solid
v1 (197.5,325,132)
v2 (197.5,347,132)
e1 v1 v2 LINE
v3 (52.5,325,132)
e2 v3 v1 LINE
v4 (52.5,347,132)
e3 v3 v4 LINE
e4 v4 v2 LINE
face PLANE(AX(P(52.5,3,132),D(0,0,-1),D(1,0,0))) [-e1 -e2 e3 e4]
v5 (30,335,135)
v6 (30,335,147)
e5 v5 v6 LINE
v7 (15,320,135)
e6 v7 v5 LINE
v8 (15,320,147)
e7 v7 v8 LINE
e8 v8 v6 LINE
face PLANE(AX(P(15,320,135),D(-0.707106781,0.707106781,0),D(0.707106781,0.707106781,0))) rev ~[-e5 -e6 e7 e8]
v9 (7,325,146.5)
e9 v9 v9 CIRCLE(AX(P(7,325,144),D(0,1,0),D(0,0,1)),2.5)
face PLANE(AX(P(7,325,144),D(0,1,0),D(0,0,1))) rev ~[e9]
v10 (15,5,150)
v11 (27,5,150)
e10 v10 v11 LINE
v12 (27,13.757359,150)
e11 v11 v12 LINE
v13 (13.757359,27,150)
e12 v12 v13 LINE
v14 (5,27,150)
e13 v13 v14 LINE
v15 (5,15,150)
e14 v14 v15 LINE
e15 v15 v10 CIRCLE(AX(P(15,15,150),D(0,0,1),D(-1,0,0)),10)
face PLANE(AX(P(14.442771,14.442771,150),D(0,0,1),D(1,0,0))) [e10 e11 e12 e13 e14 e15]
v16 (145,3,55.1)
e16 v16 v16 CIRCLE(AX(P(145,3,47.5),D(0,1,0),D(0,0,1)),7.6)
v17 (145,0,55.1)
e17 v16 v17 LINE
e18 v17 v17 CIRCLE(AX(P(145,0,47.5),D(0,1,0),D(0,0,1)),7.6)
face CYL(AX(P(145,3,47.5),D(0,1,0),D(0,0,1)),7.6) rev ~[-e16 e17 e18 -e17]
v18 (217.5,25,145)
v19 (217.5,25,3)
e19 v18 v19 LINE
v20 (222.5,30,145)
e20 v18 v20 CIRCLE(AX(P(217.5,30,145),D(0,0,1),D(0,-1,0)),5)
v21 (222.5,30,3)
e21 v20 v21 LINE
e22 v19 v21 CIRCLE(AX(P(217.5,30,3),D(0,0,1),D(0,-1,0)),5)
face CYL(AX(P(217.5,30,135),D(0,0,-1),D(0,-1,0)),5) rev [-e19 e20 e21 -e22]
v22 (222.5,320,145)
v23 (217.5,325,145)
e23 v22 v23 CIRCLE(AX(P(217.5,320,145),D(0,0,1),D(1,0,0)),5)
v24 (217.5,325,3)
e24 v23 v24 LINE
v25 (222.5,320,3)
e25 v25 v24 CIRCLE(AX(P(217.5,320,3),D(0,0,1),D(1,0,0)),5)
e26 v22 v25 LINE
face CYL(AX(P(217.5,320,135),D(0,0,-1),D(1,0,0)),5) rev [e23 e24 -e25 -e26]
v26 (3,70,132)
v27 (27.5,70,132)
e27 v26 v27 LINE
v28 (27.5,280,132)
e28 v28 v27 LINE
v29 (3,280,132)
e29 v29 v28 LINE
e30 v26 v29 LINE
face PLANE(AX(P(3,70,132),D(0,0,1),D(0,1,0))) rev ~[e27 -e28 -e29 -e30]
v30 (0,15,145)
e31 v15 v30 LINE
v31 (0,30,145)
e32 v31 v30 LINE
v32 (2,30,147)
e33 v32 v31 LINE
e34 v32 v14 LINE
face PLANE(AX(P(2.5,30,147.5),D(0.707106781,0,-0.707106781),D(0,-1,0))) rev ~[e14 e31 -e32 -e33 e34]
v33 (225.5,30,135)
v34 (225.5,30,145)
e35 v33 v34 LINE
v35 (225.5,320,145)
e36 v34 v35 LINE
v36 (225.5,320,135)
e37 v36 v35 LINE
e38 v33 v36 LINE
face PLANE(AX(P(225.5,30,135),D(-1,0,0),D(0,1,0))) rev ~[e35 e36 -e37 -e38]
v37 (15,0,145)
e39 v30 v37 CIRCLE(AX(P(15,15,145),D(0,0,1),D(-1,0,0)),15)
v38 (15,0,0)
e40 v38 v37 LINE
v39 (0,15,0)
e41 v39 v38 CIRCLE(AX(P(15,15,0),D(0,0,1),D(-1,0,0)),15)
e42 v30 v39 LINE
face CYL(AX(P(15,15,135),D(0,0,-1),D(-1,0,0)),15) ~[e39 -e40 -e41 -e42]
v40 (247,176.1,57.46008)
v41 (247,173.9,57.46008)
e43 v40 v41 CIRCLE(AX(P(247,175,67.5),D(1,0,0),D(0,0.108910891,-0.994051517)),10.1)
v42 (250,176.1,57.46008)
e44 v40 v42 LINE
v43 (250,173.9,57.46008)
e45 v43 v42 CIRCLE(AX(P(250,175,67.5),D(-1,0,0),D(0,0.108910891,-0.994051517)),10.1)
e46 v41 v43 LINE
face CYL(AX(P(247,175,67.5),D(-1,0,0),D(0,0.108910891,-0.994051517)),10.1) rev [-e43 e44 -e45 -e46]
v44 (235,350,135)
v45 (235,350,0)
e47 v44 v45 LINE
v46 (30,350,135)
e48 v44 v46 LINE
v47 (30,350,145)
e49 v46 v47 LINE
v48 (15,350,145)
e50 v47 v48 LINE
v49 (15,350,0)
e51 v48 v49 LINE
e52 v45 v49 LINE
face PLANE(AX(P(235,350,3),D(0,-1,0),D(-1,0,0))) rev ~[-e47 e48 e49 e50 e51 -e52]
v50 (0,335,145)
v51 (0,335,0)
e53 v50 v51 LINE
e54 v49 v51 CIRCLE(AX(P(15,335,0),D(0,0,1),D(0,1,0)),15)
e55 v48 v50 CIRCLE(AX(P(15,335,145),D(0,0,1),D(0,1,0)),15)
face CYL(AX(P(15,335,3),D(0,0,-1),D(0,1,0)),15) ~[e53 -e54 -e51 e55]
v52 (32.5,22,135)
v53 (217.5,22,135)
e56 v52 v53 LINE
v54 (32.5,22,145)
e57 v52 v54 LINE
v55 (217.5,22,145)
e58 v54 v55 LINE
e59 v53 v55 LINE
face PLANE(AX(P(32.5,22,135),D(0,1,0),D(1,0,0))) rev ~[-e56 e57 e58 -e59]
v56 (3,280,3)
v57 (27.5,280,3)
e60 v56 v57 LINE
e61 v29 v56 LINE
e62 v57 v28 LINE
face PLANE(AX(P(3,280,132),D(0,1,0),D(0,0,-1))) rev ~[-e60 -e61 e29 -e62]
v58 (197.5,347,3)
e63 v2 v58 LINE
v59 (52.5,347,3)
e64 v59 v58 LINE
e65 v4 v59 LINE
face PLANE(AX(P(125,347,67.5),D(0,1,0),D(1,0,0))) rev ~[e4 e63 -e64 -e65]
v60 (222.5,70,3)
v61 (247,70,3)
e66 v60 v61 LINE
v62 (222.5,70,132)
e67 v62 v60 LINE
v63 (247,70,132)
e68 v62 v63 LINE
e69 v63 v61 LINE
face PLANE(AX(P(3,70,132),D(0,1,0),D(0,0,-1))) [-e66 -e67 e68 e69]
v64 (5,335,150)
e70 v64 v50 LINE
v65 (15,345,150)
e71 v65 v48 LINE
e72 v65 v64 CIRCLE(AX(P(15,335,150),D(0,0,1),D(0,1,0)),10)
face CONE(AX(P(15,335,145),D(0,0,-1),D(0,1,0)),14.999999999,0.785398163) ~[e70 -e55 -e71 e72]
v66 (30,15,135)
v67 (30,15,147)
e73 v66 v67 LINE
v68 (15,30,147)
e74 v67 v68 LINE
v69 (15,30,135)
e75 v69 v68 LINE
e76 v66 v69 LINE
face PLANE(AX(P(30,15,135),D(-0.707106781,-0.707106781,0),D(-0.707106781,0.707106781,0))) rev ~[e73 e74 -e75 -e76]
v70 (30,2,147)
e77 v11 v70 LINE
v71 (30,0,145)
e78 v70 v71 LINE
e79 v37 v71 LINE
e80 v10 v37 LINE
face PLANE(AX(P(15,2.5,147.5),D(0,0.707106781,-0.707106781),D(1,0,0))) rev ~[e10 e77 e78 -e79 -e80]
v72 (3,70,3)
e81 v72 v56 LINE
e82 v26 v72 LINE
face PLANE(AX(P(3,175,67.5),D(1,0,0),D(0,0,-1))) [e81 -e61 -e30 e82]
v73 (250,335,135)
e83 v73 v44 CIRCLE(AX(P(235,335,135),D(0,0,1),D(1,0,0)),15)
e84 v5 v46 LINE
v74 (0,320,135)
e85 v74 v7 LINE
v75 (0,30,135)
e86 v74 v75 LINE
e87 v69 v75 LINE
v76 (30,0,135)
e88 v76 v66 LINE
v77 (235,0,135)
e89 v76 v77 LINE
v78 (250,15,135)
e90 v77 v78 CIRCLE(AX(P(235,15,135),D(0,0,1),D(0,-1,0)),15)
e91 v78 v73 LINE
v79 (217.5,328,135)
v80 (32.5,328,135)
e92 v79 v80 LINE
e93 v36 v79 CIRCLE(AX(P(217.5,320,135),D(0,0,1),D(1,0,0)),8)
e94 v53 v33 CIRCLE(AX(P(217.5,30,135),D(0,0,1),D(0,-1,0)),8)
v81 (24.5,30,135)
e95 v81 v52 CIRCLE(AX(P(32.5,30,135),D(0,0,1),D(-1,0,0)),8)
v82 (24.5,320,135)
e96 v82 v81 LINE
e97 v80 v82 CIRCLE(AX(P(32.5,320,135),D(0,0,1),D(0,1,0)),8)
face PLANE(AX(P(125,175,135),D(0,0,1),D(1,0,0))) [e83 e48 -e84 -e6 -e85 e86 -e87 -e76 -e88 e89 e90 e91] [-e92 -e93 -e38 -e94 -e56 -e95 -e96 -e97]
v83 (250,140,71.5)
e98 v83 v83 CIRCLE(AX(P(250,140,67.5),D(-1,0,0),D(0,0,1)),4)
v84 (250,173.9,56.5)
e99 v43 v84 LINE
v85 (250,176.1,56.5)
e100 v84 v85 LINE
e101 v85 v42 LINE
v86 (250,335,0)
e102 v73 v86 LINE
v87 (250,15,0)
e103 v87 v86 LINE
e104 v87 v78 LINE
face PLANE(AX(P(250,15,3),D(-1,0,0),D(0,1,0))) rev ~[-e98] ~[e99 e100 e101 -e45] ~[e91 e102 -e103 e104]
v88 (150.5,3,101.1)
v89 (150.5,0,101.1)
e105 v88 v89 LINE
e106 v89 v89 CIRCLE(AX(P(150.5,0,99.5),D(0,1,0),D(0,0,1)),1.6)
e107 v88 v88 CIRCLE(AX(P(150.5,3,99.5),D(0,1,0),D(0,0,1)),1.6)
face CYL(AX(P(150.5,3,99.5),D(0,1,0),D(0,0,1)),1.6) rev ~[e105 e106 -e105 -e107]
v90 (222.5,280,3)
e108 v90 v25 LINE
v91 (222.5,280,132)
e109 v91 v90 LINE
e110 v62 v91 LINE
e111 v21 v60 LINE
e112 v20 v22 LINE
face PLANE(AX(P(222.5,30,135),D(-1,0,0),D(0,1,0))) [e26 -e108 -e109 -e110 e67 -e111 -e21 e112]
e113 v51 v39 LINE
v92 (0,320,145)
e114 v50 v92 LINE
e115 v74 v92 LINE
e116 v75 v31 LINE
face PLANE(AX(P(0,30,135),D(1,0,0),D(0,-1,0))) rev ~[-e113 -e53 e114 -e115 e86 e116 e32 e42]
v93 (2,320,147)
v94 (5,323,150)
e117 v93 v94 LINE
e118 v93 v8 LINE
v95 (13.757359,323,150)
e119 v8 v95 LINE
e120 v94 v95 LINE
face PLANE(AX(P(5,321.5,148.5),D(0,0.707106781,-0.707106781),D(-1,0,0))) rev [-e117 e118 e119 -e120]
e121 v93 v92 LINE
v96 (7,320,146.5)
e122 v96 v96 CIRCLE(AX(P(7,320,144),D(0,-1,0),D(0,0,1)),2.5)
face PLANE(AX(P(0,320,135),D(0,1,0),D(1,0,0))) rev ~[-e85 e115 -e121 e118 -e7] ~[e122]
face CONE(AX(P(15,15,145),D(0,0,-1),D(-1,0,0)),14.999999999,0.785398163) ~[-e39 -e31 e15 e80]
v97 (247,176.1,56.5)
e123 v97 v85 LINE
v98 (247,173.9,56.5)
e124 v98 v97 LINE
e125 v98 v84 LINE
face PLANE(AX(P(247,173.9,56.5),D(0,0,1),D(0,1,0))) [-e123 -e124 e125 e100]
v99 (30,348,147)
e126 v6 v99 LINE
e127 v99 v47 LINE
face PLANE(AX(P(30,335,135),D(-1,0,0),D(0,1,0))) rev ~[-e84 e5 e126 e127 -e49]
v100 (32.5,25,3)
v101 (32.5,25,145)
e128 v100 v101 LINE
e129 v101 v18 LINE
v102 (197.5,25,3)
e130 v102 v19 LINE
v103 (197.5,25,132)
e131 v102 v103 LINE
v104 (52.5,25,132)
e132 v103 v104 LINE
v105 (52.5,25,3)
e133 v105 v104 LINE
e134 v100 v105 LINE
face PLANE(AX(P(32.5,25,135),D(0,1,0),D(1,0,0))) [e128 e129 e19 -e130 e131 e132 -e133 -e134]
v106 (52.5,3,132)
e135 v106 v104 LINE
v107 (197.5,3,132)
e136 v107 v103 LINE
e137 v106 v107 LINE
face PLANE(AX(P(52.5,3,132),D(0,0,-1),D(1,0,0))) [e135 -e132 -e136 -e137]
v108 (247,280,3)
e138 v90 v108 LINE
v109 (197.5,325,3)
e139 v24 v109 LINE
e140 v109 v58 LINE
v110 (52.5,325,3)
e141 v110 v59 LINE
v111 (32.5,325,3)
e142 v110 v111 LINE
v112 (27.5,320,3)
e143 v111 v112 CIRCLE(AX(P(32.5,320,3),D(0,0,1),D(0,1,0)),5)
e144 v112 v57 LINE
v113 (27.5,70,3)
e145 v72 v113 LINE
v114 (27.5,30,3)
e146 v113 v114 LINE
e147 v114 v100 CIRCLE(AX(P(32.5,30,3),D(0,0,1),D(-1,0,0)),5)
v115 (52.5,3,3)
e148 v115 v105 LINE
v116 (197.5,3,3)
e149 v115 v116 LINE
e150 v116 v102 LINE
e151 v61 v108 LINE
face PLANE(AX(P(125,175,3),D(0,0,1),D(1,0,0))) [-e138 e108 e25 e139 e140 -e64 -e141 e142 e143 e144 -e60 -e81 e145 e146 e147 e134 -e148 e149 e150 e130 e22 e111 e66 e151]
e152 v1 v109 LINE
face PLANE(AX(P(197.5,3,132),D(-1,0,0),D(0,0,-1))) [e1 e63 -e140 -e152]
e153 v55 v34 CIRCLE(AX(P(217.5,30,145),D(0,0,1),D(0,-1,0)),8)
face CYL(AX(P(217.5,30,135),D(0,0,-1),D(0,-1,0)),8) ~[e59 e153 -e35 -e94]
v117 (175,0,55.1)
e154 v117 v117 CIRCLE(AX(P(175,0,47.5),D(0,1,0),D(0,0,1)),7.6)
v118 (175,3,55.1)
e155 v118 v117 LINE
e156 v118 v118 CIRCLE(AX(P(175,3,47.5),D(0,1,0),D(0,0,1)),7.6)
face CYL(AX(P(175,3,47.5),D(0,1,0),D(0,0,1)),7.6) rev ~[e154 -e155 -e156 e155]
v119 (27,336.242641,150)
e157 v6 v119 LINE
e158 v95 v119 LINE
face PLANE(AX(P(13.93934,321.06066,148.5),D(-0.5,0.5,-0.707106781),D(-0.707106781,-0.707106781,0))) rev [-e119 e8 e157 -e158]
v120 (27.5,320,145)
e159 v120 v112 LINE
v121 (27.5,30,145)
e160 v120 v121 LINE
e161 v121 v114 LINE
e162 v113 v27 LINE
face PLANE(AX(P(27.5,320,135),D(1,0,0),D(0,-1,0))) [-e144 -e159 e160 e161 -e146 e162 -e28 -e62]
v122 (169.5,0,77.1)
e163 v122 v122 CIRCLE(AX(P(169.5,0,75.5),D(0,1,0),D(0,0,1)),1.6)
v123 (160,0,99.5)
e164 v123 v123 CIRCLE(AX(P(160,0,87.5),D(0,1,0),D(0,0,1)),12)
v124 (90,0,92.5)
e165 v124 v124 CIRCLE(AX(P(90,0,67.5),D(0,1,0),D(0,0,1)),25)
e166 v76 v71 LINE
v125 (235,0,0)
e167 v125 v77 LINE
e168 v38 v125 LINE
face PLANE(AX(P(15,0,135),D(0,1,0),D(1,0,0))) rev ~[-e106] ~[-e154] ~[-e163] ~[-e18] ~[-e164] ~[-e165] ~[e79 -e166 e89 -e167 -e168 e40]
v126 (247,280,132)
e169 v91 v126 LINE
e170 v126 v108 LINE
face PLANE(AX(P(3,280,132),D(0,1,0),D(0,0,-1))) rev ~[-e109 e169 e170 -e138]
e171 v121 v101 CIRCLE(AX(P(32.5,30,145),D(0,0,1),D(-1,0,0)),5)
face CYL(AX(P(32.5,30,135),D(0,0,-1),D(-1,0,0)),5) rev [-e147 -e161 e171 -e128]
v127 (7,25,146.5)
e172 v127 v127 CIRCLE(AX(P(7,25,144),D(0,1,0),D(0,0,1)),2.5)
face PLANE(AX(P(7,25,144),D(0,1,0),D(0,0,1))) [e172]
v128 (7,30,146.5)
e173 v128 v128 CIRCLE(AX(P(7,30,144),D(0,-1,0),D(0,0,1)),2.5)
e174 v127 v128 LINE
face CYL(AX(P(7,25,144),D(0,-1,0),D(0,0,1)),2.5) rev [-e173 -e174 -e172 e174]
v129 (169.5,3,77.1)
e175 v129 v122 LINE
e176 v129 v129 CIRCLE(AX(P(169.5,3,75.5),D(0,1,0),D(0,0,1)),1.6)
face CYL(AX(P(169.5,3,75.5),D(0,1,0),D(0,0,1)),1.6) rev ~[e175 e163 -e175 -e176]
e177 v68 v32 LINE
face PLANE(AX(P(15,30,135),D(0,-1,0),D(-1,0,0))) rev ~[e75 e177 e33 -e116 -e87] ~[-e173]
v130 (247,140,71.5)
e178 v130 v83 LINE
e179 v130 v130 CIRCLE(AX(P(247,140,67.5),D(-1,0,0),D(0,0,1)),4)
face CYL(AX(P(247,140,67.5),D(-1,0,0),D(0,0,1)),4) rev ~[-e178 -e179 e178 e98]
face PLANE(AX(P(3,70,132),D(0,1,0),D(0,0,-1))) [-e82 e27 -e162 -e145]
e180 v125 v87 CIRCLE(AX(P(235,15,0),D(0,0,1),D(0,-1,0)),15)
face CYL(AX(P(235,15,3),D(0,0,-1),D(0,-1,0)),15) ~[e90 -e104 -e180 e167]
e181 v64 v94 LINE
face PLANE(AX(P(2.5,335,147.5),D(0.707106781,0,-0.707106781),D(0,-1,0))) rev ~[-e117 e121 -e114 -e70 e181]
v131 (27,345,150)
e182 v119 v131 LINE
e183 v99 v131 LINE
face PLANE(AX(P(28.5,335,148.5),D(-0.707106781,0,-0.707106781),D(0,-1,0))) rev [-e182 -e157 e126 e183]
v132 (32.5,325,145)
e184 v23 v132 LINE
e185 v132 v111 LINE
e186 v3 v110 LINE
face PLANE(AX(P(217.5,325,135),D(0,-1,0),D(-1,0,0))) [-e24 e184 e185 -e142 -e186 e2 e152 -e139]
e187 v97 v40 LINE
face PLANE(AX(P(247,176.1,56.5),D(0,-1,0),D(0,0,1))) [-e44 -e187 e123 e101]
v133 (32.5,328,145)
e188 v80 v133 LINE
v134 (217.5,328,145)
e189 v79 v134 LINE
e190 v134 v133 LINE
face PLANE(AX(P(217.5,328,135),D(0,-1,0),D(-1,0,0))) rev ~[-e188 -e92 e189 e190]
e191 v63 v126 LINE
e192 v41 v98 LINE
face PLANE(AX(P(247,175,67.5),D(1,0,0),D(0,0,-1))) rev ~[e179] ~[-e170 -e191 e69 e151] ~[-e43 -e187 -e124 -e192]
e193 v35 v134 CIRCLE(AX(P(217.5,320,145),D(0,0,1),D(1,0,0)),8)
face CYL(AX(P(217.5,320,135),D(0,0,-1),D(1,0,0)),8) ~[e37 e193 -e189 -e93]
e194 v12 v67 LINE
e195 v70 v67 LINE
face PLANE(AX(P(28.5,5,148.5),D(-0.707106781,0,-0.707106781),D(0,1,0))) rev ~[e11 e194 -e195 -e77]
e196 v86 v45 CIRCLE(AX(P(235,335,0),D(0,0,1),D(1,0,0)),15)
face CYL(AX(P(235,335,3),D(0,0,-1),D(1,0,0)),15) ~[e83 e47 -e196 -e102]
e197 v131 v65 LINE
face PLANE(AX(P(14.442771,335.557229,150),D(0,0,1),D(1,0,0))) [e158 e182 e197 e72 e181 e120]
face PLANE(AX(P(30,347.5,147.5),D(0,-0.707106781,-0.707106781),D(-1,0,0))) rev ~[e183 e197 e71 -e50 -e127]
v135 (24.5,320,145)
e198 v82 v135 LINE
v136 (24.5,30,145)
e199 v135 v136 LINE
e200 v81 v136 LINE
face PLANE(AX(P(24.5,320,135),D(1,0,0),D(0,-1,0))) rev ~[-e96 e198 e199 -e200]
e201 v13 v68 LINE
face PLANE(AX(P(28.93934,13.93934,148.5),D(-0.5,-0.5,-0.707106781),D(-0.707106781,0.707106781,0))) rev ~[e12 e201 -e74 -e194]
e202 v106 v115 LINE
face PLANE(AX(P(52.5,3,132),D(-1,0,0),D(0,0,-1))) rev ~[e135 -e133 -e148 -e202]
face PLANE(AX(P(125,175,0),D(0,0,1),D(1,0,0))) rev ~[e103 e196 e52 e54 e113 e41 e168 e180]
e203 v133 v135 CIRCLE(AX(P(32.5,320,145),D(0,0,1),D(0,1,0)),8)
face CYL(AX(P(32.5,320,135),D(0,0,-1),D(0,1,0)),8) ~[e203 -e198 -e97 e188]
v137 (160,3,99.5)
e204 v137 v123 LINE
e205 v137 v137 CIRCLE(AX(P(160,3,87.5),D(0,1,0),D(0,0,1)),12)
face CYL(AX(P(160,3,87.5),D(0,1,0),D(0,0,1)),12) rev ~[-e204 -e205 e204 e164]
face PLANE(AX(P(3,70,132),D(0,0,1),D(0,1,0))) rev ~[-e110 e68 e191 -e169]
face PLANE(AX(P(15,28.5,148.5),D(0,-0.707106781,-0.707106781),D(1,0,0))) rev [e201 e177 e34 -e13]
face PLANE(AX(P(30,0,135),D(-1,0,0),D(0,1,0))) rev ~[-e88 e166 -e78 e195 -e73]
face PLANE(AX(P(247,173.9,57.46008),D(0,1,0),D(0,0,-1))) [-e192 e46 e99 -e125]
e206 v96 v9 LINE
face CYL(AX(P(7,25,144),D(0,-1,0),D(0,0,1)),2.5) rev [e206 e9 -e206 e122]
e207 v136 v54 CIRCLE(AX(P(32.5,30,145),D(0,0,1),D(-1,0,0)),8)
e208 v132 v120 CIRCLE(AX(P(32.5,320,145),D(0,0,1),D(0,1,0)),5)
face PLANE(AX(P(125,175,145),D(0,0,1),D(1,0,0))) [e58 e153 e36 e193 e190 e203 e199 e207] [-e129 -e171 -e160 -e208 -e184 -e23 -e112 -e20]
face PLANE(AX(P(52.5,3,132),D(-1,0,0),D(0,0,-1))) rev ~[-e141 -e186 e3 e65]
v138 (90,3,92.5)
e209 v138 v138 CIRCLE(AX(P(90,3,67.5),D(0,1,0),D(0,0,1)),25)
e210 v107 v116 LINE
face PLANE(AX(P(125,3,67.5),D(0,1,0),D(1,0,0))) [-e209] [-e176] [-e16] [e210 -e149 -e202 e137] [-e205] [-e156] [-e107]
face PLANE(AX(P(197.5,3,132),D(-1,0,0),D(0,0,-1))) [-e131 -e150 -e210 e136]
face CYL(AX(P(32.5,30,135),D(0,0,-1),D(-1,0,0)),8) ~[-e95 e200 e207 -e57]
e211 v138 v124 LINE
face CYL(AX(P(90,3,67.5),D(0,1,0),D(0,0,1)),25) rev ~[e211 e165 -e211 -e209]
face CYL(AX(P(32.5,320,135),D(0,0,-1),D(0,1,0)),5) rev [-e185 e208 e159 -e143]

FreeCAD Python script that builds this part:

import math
import FreeCAD as App
import Part
import Sketcher
from FreeCAD import Vector
Q = App.Units.Quantity


def edges_at(feature, points):
    """Names of the edges that pass closest to the given points."""
    edges = feature.Shape.Edges
    near = lambda p: min(range(len(edges)), key=lambda i: edges[i].distToShape(Part.Vertex(*p))[0])
    return sorted({f"Edge{near(p) + 1}" for p in points})

doc = App.newDocument("Part")
body = doc.addObject("PartDesign::Body", "Body")

# Sketch on XY plane
sketch1 = doc.addObject("Sketcher::SketchObject", "Sketch")
body.addObject(sketch1)
sketch1.AttachmentSupport = (doc.XY_Plane, [""])
sketch1.MapMode = "FlatFace"
sketch1.addGeometry([
    Part.LineSegment(Vector(15, 0, 0), Vector(235, 0, 0)),  # 0
    Part.ArcOfCircle(Part.Circle(Vector(235, 15, 0), Vector(0, 0, 1), 15), math.radians(-90), math.radians(0)),  # 1
    Part.LineSegment(Vector(250, 15, 0), Vector(250, 335, 0)),  # 2
    Part.ArcOfCircle(Part.Circle(Vector(235, 335, 0), Vector(0, 0, 1), 15), math.radians(0), math.radians(90)),  # 3
    Part.LineSegment(Vector(235, 350, 0), Vector(15, 350, 0)),  # 4
    Part.ArcOfCircle(Part.Circle(Vector(15, 335, 0), Vector(0, 0, 1), 15), math.radians(90), math.radians(180)),  # 5
    Part.LineSegment(Vector(0, 335, 0), Vector(0, 15, 0)),  # 6
    Part.ArcOfCircle(Part.Circle(Vector(15, 15, 0), Vector(0, 0, 1), 15), math.radians(180), math.radians(270)),  # 7
], False)
sketch1.addConstraint([
    Sketcher.Constraint("Tangent", 0, 2, 1, 1),
    Sketcher.Constraint("Tangent", 1, 2, 2, 1),
    Sketcher.Constraint("Tangent", 2, 2, 3, 1),
    Sketcher.Constraint("Tangent", 3, 2, 4, 1),
    Sketcher.Constraint("Tangent", 4, 2, 5, 1),
    Sketcher.Constraint("Tangent", 5, 2, 6, 1),
    Sketcher.Constraint("Tangent", 6, 2, 7, 1),
    Sketcher.Constraint("Tangent", 7, 2, 0, 1),
    Sketcher.Constraint("Horizontal", 0),
    Sketcher.Constraint("Vertical", 2),
    Sketcher.Constraint("Horizontal", 4),
    Sketcher.Constraint("Vertical", 6),
    Sketcher.Constraint("Equal", 1, 3),
    Sketcher.Constraint("Equal", 3, 5),
    Sketcher.Constraint("Equal", 5, 7),
    Sketcher.Constraint("PointOnObject", 0, 2, -1),
    Sketcher.Constraint("PointOnObject", 5, 2, -2),
    Sketcher.Constraint("Radius", 1, Q("15 mm")),
    Sketcher.Constraint("DistanceX", 0, 1, 0, 2, Q("220 mm")),
    Sketcher.Constraint("DistanceY", 2, 1, 2, 2, Q("320 mm")),
])
pad1 = doc.addObject("PartDesign::Pad", "Pad")
body.addObject(pad1)
pad1.Profile = sketch1
pad1.Length = 3

# Sketch on XY plane
sketch2 = doc.addObject("Sketcher::SketchObject", "Sketch001")
body.addObject(sketch2)
sketch2.AttachmentSupport = (doc.XY_Plane, [""])
sketch2.MapMode = "FlatFace"
sketch2.AttachmentOffset = App.Placement(Vector(0, 0, 3), App.Rotation())
sketch2.addGeometry([
    Part.LineSegment(Vector(0, 335, 0), Vector(0, 15, 0)),  # 0
    Part.ArcOfCircle(Part.Circle(Vector(15, 15, 0), Vector(0, 0, 1), 15), math.radians(180), math.radians(270)),  # 1
    Part.LineSegment(Vector(15, 0, 0), Vector(235, 0, 0)),  # 2
    Part.ArcOfCircle(Part.Circle(Vector(235, 15, 0), Vector(0, 0, 1), 15), math.radians(-90), math.radians(0)),  # 3
    Part.LineSegment(Vector(250, 15, 0), Vector(250, 335, 0)),  # 4
    Part.ArcOfCircle(Part.Circle(Vector(235, 335, 0), Vector(0, 0, 1), 15), math.radians(0), math.radians(90)),  # 5
    Part.LineSegment(Vector(235, 350, 0), Vector(15, 350, 0)),  # 6
    Part.ArcOfCircle(Part.Circle(Vector(15, 335, 0), Vector(0, 0, 1), 15), math.radians(90), math.radians(180)),  # 7
    Part.ArcOfCircle(Part.Circle(Vector(32, 320, 0), Vector(0, 0, 1), 5), math.radians(90), math.radians(180)),  # 8
    Part.LineSegment(Vector(32, 325, 0), Vector(218, 325, 0)),  # 9
    Part.ArcOfCircle(Part.Circle(Vector(218, 320, 0), Vector(0, 0, 1), 5), math.radians(0), math.radians(90)),  # 10
    Part.LineSegment(Vector(222, 320, 0), Vector(222, 30, 0)),  # 11
    Part.ArcOfCircle(Part.Circle(Vector(218, 30, 0), Vector(0, 0, 1), 5), math.radians(-90), math.radians(0)),  # 12
    Part.LineSegment(Vector(218, 25, 0), Vector(32, 25, 0)),  # 13
    Part.ArcOfCircle(Part.Circle(Vector(32, 30, 0), Vector(0, 0, 1), 5), math.radians(180), math.radians(270)),  # 14
    Part.LineSegment(Vector(28, 30, 0), Vector(28, 320, 0)),  # 15
], False)
sketch2.addConstraint([
    Sketcher.Constraint("Tangent", 0, 2, 1, 1),
    Sketcher.Constraint("Tangent", 1, 2, 2, 1),
    Sketcher.Constraint("Tangent", 2, 2, 3, 1),
    Sketcher.Constraint("Tangent", 3, 2, 4, 1),
    Sketcher.Constraint("Tangent", 4, 2, 5, 1),
    Sketcher.Constraint("Tangent", 5, 2, 6, 1),
    Sketcher.Constraint("Tangent", 6, 2, 7, 1),
    Sketcher.Constraint("Tangent", 7, 2, 0, 1),
    Sketcher.Constraint("Tangent", 8, 1, 9, 1),
    Sketcher.Constraint("Tangent", 9, 2, 10, 2),
    Sketcher.Constraint("Tangent", 10, 1, 11, 1),
    Sketcher.Constraint("Tangent", 11, 2, 12, 2),
    Sketcher.Constraint("Tangent", 12, 1, 13, 1),
    Sketcher.Constraint("Tangent", 13, 2, 14, 2),
    Sketcher.Constraint("Tangent", 14, 1, 15, 1),
    Sketcher.Constraint("Tangent", 15, 2, 8, 2),
    Sketcher.Constraint("Vertical", 0),
    Sketcher.Constraint("Horizontal", 2),
    Sketcher.Constraint("Vertical", 4),
    Sketcher.Constraint("Horizontal", 6),
    Sketcher.Constraint("Horizontal", 9),
    Sketcher.Constraint("Vertical", 11),
    Sketcher.Constraint("Horizontal", 13),
    Sketcher.Constraint("Vertical", 15),
    Sketcher.Constraint("Equal", 1, 3),
    Sketcher.Constraint("Equal", 3, 5),
    Sketcher.Constraint("Equal", 5, 7),
    Sketcher.Constraint("Equal", 8, 10),
    Sketcher.Constraint("Equal", 10, 12),
    Sketcher.Constraint("Equal", 12, 14),
    Sketcher.Constraint("PointOnObject", 0, 2, -2),
    Sketcher.Constraint("PointOnObject", 1, 2, -1),
    Sketcher.Constraint("Radius", 1, Q("15 mm")),
    Sketcher.Constraint("Radius", 8, Q("5 mm")),
    Sketcher.Constraint("DistanceX", 2, 1, 2, 2, Q("220 mm")),
    Sketcher.Constraint("DistanceX", 9, 1, 9, 2, Q("185 mm")),
    Sketcher.Constraint("DistanceY", 0, 2, 0, 1, Q("320 mm")),
    Sketcher.Constraint("DistanceY", 11, 2, 11, 1, Q("290 mm")),
    Sketcher.Constraint("DistanceY", -1, 1, 8, 3, Q("320 mm")),
    Sketcher.Constraint("DistanceX", -1, 1, 8, 3, Q("32.5 mm")),
])
pad2 = doc.addObject("PartDesign::Pad", "Pad001")
body.addObject(pad2)
pad2.Profile = sketch2
pad2.Length = 132

# Sketch on YZ plane
sketch3 = doc.addObject("Sketcher::SketchObject", "Sketch002")
body.addObject(sketch3)
sketch3.AttachmentSupport = (doc.YZ_Plane, [""])
sketch3.MapMode = "FlatFace"
sketch3.AttachmentOffset = App.Placement(Vector(0, 0, 27.5), App.Rotation())
sketch3.addGeometry([
    Part.LineSegment(Vector(280, 132, 0), Vector(70, 132, 0)),
    Part.LineSegment(Vector(70, 132, 0), Vector(70, 3, 0)),
    Part.LineSegment(Vector(70, 3, 0), Vector(280, 3, 0)),
    Part.LineSegment(Vector(280, 3, 0), Vector(280, 132, 0)),
], False)
sketch3.addConstraint([
    Sketcher.Constraint("Coincident", 0, 2, 1, 1),
    Sketcher.Constraint("Coincident", 1, 2, 2, 1),
    Sketcher.Constraint("Coincident", 2, 2, 3, 1),
    Sketcher.Constraint("Coincident", 3, 2, 0, 1),
    Sketcher.Constraint("Horizontal", 0),
    Sketcher.Constraint("Vertical", 1),
    Sketcher.Constraint("Horizontal", 2),
    Sketcher.Constraint("Vertical", 3),
    Sketcher.Constraint("DistanceX", 0, 2, 0, 1, Q("210 mm")),
    Sketcher.Constraint("DistanceY", 1, 2, 1, 1, Q("129 mm")),
    Sketcher.Constraint("DistanceX", -1, 1, 0, 2, Q("70 mm")),
    Sketcher.Constraint("DistanceY", -1, 1, 0, 2, Q("132 mm")),
])
pocket1 = doc.addObject("PartDesign::Pocket", "Pocket")
body.addObject(pocket1)
pocket1.Profile = sketch3
pocket1.Type = "TwoLengths"
pocket1.Length = 219.5
pocket1.Length2 = 24.5
pocket1.Reversed = True

# Sketch on XZ plane
sketch4 = doc.addObject("Sketcher::SketchObject", "Sketch003")
body.addObject(sketch4)
sketch4.AttachmentSupport = (doc.XZ_Plane, [""])
sketch4.MapMode = "FlatFace"
sketch4.AttachmentOffset = App.Placement(Vector(0, 0, -25), App.Rotation())
sketch4.addGeometry([
    Part.LineSegment(Vector(52, 3, 0), Vector(52, 132, 0)),
    Part.LineSegment(Vector(52, 132, 0), Vector(198, 132, 0)),
    Part.LineSegment(Vector(198, 132, 0), Vector(198, 3, 0)),
    Part.LineSegment(Vector(198, 3, 0), Vector(52, 3, 0)),
], False)
sketch4.addConstraint([
    Sketcher.Constraint("Coincident", 0, 2, 1, 1),
    Sketcher.Constraint("Coincident", 1, 2, 2, 1),
    Sketcher.Constraint("Coincident", 2, 2, 3, 1),
    Sketcher.Constraint("Coincident", 3, 2, 0, 1),
    Sketcher.Constraint("Vertical", 0),
    Sketcher.Constraint("Horizontal", 1),
    Sketcher.Constraint("Vertical", 2),
    Sketcher.Constraint("Horizontal", 3),
    Sketcher.Constraint("DistanceX", 1, 1, 1, 2, Q("145 mm")),
    Sketcher.Constraint("DistanceY", 0, 1, 0, 2, Q("129 mm")),
    Sketcher.Constraint("DistanceY", -1, 1, 0, 2, Q("132 mm")),
    Sketcher.Constraint("DistanceX", -1, 1, 0, 2, Q("52.5 mm")),
])
pocket2 = doc.addObject("PartDesign::Pocket", "Pocket001")
body.addObject(pocket2)
pocket2.Profile = sketch4
pocket2.Type = "TwoLengths"
pocket2.Length = 322
pocket2.Length2 = 22

# Sketch on XY plane
sketch5 = doc.addObject("Sketcher::SketchObject", "Sketch004")
body.addObject(sketch5)
sketch5.AttachmentSupport = (doc.XY_Plane, [""])
sketch5.MapMode = "FlatFace"
sketch5.AttachmentOffset = App.Placement(Vector(0, 0, 135), App.Rotation())
sketch5.addGeometry([
    Part.LineSegment(Vector(226, 30, 0), Vector(226, 320, 0)),  # 0
    Part.ArcOfCircle(Part.Circle(Vector(217, 320, 0), Vector(0, 0, 1), 8), math.radians(0), math.radians(90)),  # 1
    Part.LineSegment(Vector(218, 328, 0), Vector(32, 328, 0)),  # 2
    Part.ArcOfCircle(Part.Circle(Vector(33, 320, 0), Vector(0, 0, 1), 8), math.radians(90), math.radians(180)),  # 3
    Part.LineSegment(Vector(24, 320, 0), Vector(24, 30, 0)),  # 4
    Part.ArcOfCircle(Part.Circle(Vector(33, 30, 0), Vector(0, 0, 1), 8), math.radians(-180), math.radians(-90)),  # 5
    Part.LineSegment(Vector(32, 22, 0), Vector(218, 22, 0)),  # 6
    Part.ArcOfCircle(Part.Circle(Vector(217, 30, 0), Vector(0, 0, 1), 8), math.radians(-90), math.radians(0)),  # 7
    Part.LineSegment(Vector(218, 25, 0), Vector(32, 25, 0)),  # 8
    Part.ArcOfCircle(Part.Circle(Vector(32, 30, 0), Vector(0, 0, 1), 5), math.radians(180), math.radians(270)),  # 9
    Part.LineSegment(Vector(28, 30, 0), Vector(28, 320, 0)),  # 10
    Part.ArcOfCircle(Part.Circle(Vector(32, 320, 0), Vector(0, 0, 1), 5), math.radians(90), math.radians(180)),  # 11
    Part.LineSegment(Vector(32, 325, 0), Vector(218, 325, 0)),  # 12
    Part.ArcOfCircle(Part.Circle(Vector(218, 320, 0), Vector(0, 0, 1), 5), math.radians(0), math.radians(90)),  # 13
    Part.LineSegment(Vector(222, 320, 0), Vector(222, 30, 0)),  # 14
    Part.ArcOfCircle(Part.Circle(Vector(218, 30, 0), Vector(0, 0, 1), 5), math.radians(-90), math.radians(0)),  # 15
], False)
sketch5.addConstraint([
    Sketcher.Constraint("Tangent", 0, 2, 1, 1),
    Sketcher.Constraint("Tangent", 1, 2, 2, 1),
    Sketcher.Constraint("Tangent", 2, 2, 3, 1),
    Sketcher.Constraint("Tangent", 3, 2, 4, 1),
    Sketcher.Constraint("Tangent", 4, 2, 5, 1),
    Sketcher.Constraint("Tangent", 5, 2, 6, 1),
    Sketcher.Constraint("Tangent", 6, 2, 7, 1),
    Sketcher.Constraint("Tangent", 7, 2, 0, 1),
    Sketcher.Constraint("Tangent", 8, 2, 9, 2),
    Sketcher.Constraint("Tangent", 9, 1, 10, 1),
    Sketcher.Constraint("Tangent", 10, 2, 11, 2),
    Sketcher.Constraint("Tangent", 11, 1, 12, 1),
    Sketcher.Constraint("Tangent", 12, 2, 13, 2),
    Sketcher.Constraint("Tangent", 13, 1, 14, 1),
    Sketcher.Constraint("Tangent", 14, 2, 15, 2),
    Sketcher.Constraint("Tangent", 15, 1, 8, 1),
    Sketcher.Constraint("Vertical", 0),
    Sketcher.Constraint("Horizontal", 2),
    Sketcher.Constraint("Vertical", 4),
    Sketcher.Constraint("Horizontal", 6),
    Sketcher.Constraint("Horizontal", 8),
    Sketcher.Constraint("Vertical", 10),
    Sketcher.Constraint("Horizontal", 12),
    Sketcher.Constraint("Vertical", 14),
    Sketcher.Constraint("Coincident", 9, 3, 5, 3),
    Sketcher.Constraint("Coincident", 11, 3, 3, 3),
    Sketcher.Constraint("Coincident", 13, 3, 1, 3),
    Sketcher.Constraint("Equal", 1, 3),
    Sketcher.Constraint("Equal", 3, 5),
    Sketcher.Constraint("Equal", 5, 7),
    Sketcher.Constraint("Equal", 13, 15),
    Sketcher.Constraint("Radius", 1, Q("8 mm")),
    Sketcher.Constraint("Radius", 9, Q("5 mm")),
    Sketcher.Constraint("DistanceX", 2, 2, 2, 1, Q("185 mm")),
    Sketcher.Constraint("DistanceY", 0, 1, 0, 2, Q("290 mm")),
    Sketcher.Constraint("DistanceY", -1, 1, 1, 3, Q("320 mm")),
    Sketcher.Constraint("DistanceX", -1, 1, 1, 3, Q("217.5 mm")),
])
pad3 = doc.addObject("PartDesign::Pad", "Pad002")
body.addObject(pad3)
pad3.Profile = sketch5
pad3.Length = 10

# Sketch on XY plane
sketch6 = doc.addObject("Sketcher::SketchObject", "Sketch005")
body.addObject(sketch6)
sketch6.AttachmentSupport = (doc.XY_Plane, [""])
sketch6.MapMode = "FlatFace"
sketch6.AttachmentOffset = App.Placement(Vector(0, 0, 135), App.Rotation())
sketch6.addGeometry([
    Part.ArcOfCircle(Part.Circle(Vector(15, 15, 0), Vector(0, 0, 1), 15), math.radians(180), math.radians(270)),  # 0
    Part.LineSegment(Vector(15, 0, 0), Vector(30, 0, 0)),  # 1
    Part.LineSegment(Vector(30, 0, 0), Vector(30, 15, 0)),  # 2
    Part.LineSegment(Vector(30, 15, 0), Vector(15, 30, 0)),  # 3
    Part.LineSegment(Vector(15, 30, 0), Vector(0, 30, 0)),  # 4
    Part.LineSegment(Vector(0, 30, 0), Vector(0, 15, 0)),  # 5
    Part.LineSegment(Vector(0, 335, 0), Vector(0, 320, 0)),  # 6
    Part.LineSegment(Vector(0, 320, 0), Vector(15, 320, 0)),  # 7
    Part.LineSegment(Vector(15, 320, 0), Vector(30, 335, 0)),  # 8
    Part.LineSegment(Vector(30, 335, 0), Vector(30, 350, 0)),  # 9
    Part.LineSegment(Vector(30, 350, 0), Vector(15, 350, 0)),  # 10
    Part.ArcOfCircle(Part.Circle(Vector(15, 335, 0), Vector(0, 0, 1), 15), math.radians(90), math.radians(180)),  # 11
], False)
sketch6.addConstraint([
    Sketcher.Constraint("Tangent", 0, 2, 1, 1),
    Sketcher.Constraint("Coincident", 1, 2, 2, 1),
    Sketcher.Constraint("Coincident", 2, 2, 3, 1),
    Sketcher.Constraint("Coincident", 3, 2, 4, 1),
    Sketcher.Constraint("Coincident", 4, 2, 5, 1),
    Sketcher.Constraint("Tangent", 5, 2, 0, 1),
    Sketcher.Constraint("Coincident", 6, 2, 7, 1),
    Sketcher.Constraint("Coincident", 7, 2, 8, 1),
    Sketcher.Constraint("Coincident", 8, 2, 9, 1),
    Sketcher.Constraint("Coincident", 9, 2, 10, 1),
    Sketcher.Constraint("Tangent", 10, 2, 11, 1),
    Sketcher.Constraint("Tangent", 11, 2, 6, 1),
    Sketcher.Constraint("Horizontal", 1),
    Sketcher.Constraint("Vertical", 2),
    Sketcher.Constraint("Horizontal", 4),
    Sketcher.Constraint("Vertical", 5),
    Sketcher.Constraint("Vertical", 6),
    Sketcher.Constraint("Horizontal", 7),
    Sketcher.Constraint("Vertical", 9),
    Sketcher.Constraint("Horizontal", 10),
    Sketcher.Constraint("Equal", 0, 11),
    Sketcher.Constraint("PointOnObject", 0, 2, -1),
    Sketcher.Constraint("PointOnObject", 4, 2, -2),
    Sketcher.Constraint("PointOnObject", 6, 2, -2),
    Sketcher.Constraint("Perpendicular", 3, 8),
    Sketcher.Constraint("Horizontal", 0, 3, 2, 2),
    Sketcher.Constraint("Horizontal", 11, 3, 8, 2),
    Sketcher.Constraint("Vertical", 0, 2, 3, 2),
    Sketcher.Constraint("Vertical", 3, 2, 7, 2),
    Sketcher.Constraint("Vertical", 2, 2, 8, 2),
    Sketcher.Constraint("Equal", 1, 4),
    Sketcher.Constraint("Equal", 2, 5),
    Sketcher.Constraint("Radius", 0, Q("15 mm")),
    Sketcher.Constraint("DistanceY", -1, 1, 11, 3, Q("335 mm")),
])
pad4 = doc.addObject("PartDesign::Pad", "Pad003")
body.addObject(pad4)
pad4.Profile = sketch6
pad4.Length = 15
doc.recompute()

chamfer = doc.addObject("PartDesign::Chamfer", "Chamfer")
body.addObject(chamfer)
chamfer.Base = (pad4, edges_at(pad4, [
    (0, 22.5, 150),
    (4.393, 4.393, 150),
    (22.5, 0, 150),
    (22.5, 350, 150),
    (4.393, 345.607, 150),
    (0, 327.5, 150),
]))
chamfer.Size = 5
doc.recompute()

chamfer2 = doc.addObject("PartDesign::Chamfer", "Chamfer001")
body.addObject(chamfer2)
chamfer2.Base = (chamfer, edges_at(chamfer, [
    (30, 10, 150),
    (22.5, 22.5, 150),
    (22.5, 327.5, 150),
    (30, 340, 150),
    (10, 30, 150),
    (10, 320, 150),
]))
chamfer2.Size = 3

# Sketch on XZ plane
sketch7 = doc.addObject("Sketcher::SketchObject", "Sketch006")
body.addObject(sketch7)
sketch7.AttachmentSupport = (doc.XZ_Plane, [""])
sketch7.MapMode = "FlatFace"
sketch7.AttachmentOffset = App.Placement(Vector(0, 0, -30), App.Rotation())
sketch7.addGeometry(Part.Circle(Vector(7, 144, 0), Vector(0, 0, 1), 2.5), False)
sketch7.addConstraint([
    Sketcher.Constraint("Diameter", 0, Q("5 mm")),
    Sketcher.Constraint("DistanceX", -1, 1, 0, 3, Q("7 mm")),
    Sketcher.Constraint("DistanceY", -1, 1, 0, 3, Q("144 mm")),
])
pocket3 = doc.addObject("PartDesign::Pocket", "Pocket002")
body.addObject(pocket3)
pocket3.Profile = sketch7
pocket3.Type = "TwoLengths"
pocket3.Length = 295
pocket3.Length2 = 5

# Sketch on XZ plane
sketch8 = doc.addObject("Sketcher::SketchObject", "Sketch007")
body.addObject(sketch8)
sketch8.AttachmentSupport = (doc.XZ_Plane, [""])
sketch8.MapMode = "FlatFace"
sketch8.AttachmentOffset = App.Placement(Vector(0, 0, -3), App.Rotation())
sketch8.addGeometry([
    Part.Circle(Vector(160, 87.5, 0), Vector(0, 0, 1), 12),  # 0
    Part.Circle(Vector(145, 47.5, 0), Vector(0, 0, 1), 7.6),  # 1
    Part.Circle(Vector(175, 47.5, 0), Vector(0, 0, 1), 7.6),  # 2
    Part.Circle(Vector(90, 67.5, 0), Vector(0, 0, 1), 25),  # 3
    Part.Circle(Vector(150.5, 99.5, 0), Vector(0, 0, 1), 1.6),  # 4
    Part.Circle(Vector(169.5, 75.5, 0), Vector(0, 0, 1), 1.6),  # 5
], False)
sketch8.addConstraint([
    Sketcher.Constraint("Equal", 1, 2),
    Sketcher.Constraint("Equal", 4, 5),
    Sketcher.Constraint("Horizontal", 1, 3, 2, 3),
    Sketcher.Constraint("Diameter", 0, Q("24 mm")),
    Sketcher.Constraint("Diameter", 3, Q("50 mm")),
    Sketcher.Constraint("Diameter", 1, Q("15.2 mm")),
    Sketcher.Constraint("Diameter", 4, Q("3.2 mm")),
    Sketcher.Constraint("DistanceX", -1, 1, 0, 3, Q("160 mm")),
    Sketcher.Constraint("DistanceX", -1, 1, 1, 3, Q("145 mm")),
    Sketcher.Constraint("DistanceX", -1, 1, 2, 3, Q("175 mm")),
    Sketcher.Constraint("DistanceX", -1, 1, 3, 3, Q("90 mm")),
    Sketcher.Constraint("DistanceY", 1, 3, 0, 3, Q("40 mm")),
    Sketcher.Constraint("DistanceY", 1, 3, 3, 3, Q("20 mm")),
    Sketcher.Constraint("DistanceY", 0, 3, 4, 3, Q("12 mm")),
    Sketcher.Constraint("DistanceY", 5, 3, 0, 3, Q("12 mm")),
    Sketcher.Constraint("DistanceX", 4, 3, 5, 3, Q("19 mm")),
    Sketcher.Constraint("DistanceY", -1, 1, 0, 3, Q("87.5 mm")),
    Sketcher.Constraint("DistanceX", -1, 1, 4, 3, Q("150.5 mm")),
])
pocket4 = doc.addObject("PartDesign::Pocket", "Pocket003")
body.addObject(pocket4)
pocket4.Profile = sketch8
pocket4.Length = 10
pocket4.Reversed = True

# Sketch on YZ plane
sketch9 = doc.addObject("Sketcher::SketchObject", "Sketch008")
body.addObject(sketch9)
sketch9.AttachmentSupport = (doc.YZ_Plane, [""])
sketch9.MapMode = "FlatFace"
sketch9.AttachmentOffset = App.Placement(Vector(0, 0, 247), App.Rotation())
sketch9.addGeometry([
    Part.Circle(Vector(140, 67.5, 0), Vector(0, 0, 1), 4),  # 0
    Part.LineSegment(Vector(173.9, 56.5, 0), Vector(173.9, 57.5, 0)),  # 1
    Part.ArcOfCircle(Part.Circle(Vector(175, 67.5, 0), Vector(0, 0, 1), 10.1), math.radians(-84), math.radians(264)),  # 2
    Part.LineSegment(Vector(176.1, 57.5, 0), Vector(176.1, 56.5, 0)),  # 3
    Part.LineSegment(Vector(176.1, 56.5, 0), Vector(173.9, 56.5, 0)),  # 4
], False)
sketch9.addConstraint([
    Sketcher.Constraint("Coincident", 1, 2, 2, 2),
    Sketcher.Constraint("Coincident", 2, 1, 3, 1),
    Sketcher.Constraint("Coincident", 3, 2, 4, 1),
    Sketcher.Constraint("Coincident", 4, 2, 1, 1),
    Sketcher.Constraint("Vertical", 1),
    Sketcher.Constraint("Vertical", 3),
    Sketcher.Constraint("Horizontal", 4),
    Sketcher.Constraint("Horizontal", 0, 3, 2, 3),
    Sketcher.Constraint("Horizontal", 1, 2, 2, 1),
    Sketcher.Constraint("Diameter", 0, Q("8 mm")),
    Sketcher.Constraint("Radius", 2, Q("10.1 mm")),
    Sketcher.Constraint("DistanceX", 4, 2, 4, 1, Q("2.2 mm")),
    Sketcher.Constraint("DistanceX", -1, 1, 0, 3, Q("140 mm")),
    Sketcher.Constraint("DistanceX", -1, 1, 2, 3, Q("175 mm")),
    Sketcher.Constraint("DistanceY", 3, 2, 2, 3, Q("11 mm")),
    Sketcher.Constraint("DistanceY", -1, 1, 0, 3, Q("67.5 mm")),
])
pocket5 = doc.addObject("PartDesign::Pocket", "Pocket004")
body.addObject(pocket5)
pocket5.Profile = sketch9
pocket5.Length = 10
pocket5.Reversed = True

doc.recompute()
